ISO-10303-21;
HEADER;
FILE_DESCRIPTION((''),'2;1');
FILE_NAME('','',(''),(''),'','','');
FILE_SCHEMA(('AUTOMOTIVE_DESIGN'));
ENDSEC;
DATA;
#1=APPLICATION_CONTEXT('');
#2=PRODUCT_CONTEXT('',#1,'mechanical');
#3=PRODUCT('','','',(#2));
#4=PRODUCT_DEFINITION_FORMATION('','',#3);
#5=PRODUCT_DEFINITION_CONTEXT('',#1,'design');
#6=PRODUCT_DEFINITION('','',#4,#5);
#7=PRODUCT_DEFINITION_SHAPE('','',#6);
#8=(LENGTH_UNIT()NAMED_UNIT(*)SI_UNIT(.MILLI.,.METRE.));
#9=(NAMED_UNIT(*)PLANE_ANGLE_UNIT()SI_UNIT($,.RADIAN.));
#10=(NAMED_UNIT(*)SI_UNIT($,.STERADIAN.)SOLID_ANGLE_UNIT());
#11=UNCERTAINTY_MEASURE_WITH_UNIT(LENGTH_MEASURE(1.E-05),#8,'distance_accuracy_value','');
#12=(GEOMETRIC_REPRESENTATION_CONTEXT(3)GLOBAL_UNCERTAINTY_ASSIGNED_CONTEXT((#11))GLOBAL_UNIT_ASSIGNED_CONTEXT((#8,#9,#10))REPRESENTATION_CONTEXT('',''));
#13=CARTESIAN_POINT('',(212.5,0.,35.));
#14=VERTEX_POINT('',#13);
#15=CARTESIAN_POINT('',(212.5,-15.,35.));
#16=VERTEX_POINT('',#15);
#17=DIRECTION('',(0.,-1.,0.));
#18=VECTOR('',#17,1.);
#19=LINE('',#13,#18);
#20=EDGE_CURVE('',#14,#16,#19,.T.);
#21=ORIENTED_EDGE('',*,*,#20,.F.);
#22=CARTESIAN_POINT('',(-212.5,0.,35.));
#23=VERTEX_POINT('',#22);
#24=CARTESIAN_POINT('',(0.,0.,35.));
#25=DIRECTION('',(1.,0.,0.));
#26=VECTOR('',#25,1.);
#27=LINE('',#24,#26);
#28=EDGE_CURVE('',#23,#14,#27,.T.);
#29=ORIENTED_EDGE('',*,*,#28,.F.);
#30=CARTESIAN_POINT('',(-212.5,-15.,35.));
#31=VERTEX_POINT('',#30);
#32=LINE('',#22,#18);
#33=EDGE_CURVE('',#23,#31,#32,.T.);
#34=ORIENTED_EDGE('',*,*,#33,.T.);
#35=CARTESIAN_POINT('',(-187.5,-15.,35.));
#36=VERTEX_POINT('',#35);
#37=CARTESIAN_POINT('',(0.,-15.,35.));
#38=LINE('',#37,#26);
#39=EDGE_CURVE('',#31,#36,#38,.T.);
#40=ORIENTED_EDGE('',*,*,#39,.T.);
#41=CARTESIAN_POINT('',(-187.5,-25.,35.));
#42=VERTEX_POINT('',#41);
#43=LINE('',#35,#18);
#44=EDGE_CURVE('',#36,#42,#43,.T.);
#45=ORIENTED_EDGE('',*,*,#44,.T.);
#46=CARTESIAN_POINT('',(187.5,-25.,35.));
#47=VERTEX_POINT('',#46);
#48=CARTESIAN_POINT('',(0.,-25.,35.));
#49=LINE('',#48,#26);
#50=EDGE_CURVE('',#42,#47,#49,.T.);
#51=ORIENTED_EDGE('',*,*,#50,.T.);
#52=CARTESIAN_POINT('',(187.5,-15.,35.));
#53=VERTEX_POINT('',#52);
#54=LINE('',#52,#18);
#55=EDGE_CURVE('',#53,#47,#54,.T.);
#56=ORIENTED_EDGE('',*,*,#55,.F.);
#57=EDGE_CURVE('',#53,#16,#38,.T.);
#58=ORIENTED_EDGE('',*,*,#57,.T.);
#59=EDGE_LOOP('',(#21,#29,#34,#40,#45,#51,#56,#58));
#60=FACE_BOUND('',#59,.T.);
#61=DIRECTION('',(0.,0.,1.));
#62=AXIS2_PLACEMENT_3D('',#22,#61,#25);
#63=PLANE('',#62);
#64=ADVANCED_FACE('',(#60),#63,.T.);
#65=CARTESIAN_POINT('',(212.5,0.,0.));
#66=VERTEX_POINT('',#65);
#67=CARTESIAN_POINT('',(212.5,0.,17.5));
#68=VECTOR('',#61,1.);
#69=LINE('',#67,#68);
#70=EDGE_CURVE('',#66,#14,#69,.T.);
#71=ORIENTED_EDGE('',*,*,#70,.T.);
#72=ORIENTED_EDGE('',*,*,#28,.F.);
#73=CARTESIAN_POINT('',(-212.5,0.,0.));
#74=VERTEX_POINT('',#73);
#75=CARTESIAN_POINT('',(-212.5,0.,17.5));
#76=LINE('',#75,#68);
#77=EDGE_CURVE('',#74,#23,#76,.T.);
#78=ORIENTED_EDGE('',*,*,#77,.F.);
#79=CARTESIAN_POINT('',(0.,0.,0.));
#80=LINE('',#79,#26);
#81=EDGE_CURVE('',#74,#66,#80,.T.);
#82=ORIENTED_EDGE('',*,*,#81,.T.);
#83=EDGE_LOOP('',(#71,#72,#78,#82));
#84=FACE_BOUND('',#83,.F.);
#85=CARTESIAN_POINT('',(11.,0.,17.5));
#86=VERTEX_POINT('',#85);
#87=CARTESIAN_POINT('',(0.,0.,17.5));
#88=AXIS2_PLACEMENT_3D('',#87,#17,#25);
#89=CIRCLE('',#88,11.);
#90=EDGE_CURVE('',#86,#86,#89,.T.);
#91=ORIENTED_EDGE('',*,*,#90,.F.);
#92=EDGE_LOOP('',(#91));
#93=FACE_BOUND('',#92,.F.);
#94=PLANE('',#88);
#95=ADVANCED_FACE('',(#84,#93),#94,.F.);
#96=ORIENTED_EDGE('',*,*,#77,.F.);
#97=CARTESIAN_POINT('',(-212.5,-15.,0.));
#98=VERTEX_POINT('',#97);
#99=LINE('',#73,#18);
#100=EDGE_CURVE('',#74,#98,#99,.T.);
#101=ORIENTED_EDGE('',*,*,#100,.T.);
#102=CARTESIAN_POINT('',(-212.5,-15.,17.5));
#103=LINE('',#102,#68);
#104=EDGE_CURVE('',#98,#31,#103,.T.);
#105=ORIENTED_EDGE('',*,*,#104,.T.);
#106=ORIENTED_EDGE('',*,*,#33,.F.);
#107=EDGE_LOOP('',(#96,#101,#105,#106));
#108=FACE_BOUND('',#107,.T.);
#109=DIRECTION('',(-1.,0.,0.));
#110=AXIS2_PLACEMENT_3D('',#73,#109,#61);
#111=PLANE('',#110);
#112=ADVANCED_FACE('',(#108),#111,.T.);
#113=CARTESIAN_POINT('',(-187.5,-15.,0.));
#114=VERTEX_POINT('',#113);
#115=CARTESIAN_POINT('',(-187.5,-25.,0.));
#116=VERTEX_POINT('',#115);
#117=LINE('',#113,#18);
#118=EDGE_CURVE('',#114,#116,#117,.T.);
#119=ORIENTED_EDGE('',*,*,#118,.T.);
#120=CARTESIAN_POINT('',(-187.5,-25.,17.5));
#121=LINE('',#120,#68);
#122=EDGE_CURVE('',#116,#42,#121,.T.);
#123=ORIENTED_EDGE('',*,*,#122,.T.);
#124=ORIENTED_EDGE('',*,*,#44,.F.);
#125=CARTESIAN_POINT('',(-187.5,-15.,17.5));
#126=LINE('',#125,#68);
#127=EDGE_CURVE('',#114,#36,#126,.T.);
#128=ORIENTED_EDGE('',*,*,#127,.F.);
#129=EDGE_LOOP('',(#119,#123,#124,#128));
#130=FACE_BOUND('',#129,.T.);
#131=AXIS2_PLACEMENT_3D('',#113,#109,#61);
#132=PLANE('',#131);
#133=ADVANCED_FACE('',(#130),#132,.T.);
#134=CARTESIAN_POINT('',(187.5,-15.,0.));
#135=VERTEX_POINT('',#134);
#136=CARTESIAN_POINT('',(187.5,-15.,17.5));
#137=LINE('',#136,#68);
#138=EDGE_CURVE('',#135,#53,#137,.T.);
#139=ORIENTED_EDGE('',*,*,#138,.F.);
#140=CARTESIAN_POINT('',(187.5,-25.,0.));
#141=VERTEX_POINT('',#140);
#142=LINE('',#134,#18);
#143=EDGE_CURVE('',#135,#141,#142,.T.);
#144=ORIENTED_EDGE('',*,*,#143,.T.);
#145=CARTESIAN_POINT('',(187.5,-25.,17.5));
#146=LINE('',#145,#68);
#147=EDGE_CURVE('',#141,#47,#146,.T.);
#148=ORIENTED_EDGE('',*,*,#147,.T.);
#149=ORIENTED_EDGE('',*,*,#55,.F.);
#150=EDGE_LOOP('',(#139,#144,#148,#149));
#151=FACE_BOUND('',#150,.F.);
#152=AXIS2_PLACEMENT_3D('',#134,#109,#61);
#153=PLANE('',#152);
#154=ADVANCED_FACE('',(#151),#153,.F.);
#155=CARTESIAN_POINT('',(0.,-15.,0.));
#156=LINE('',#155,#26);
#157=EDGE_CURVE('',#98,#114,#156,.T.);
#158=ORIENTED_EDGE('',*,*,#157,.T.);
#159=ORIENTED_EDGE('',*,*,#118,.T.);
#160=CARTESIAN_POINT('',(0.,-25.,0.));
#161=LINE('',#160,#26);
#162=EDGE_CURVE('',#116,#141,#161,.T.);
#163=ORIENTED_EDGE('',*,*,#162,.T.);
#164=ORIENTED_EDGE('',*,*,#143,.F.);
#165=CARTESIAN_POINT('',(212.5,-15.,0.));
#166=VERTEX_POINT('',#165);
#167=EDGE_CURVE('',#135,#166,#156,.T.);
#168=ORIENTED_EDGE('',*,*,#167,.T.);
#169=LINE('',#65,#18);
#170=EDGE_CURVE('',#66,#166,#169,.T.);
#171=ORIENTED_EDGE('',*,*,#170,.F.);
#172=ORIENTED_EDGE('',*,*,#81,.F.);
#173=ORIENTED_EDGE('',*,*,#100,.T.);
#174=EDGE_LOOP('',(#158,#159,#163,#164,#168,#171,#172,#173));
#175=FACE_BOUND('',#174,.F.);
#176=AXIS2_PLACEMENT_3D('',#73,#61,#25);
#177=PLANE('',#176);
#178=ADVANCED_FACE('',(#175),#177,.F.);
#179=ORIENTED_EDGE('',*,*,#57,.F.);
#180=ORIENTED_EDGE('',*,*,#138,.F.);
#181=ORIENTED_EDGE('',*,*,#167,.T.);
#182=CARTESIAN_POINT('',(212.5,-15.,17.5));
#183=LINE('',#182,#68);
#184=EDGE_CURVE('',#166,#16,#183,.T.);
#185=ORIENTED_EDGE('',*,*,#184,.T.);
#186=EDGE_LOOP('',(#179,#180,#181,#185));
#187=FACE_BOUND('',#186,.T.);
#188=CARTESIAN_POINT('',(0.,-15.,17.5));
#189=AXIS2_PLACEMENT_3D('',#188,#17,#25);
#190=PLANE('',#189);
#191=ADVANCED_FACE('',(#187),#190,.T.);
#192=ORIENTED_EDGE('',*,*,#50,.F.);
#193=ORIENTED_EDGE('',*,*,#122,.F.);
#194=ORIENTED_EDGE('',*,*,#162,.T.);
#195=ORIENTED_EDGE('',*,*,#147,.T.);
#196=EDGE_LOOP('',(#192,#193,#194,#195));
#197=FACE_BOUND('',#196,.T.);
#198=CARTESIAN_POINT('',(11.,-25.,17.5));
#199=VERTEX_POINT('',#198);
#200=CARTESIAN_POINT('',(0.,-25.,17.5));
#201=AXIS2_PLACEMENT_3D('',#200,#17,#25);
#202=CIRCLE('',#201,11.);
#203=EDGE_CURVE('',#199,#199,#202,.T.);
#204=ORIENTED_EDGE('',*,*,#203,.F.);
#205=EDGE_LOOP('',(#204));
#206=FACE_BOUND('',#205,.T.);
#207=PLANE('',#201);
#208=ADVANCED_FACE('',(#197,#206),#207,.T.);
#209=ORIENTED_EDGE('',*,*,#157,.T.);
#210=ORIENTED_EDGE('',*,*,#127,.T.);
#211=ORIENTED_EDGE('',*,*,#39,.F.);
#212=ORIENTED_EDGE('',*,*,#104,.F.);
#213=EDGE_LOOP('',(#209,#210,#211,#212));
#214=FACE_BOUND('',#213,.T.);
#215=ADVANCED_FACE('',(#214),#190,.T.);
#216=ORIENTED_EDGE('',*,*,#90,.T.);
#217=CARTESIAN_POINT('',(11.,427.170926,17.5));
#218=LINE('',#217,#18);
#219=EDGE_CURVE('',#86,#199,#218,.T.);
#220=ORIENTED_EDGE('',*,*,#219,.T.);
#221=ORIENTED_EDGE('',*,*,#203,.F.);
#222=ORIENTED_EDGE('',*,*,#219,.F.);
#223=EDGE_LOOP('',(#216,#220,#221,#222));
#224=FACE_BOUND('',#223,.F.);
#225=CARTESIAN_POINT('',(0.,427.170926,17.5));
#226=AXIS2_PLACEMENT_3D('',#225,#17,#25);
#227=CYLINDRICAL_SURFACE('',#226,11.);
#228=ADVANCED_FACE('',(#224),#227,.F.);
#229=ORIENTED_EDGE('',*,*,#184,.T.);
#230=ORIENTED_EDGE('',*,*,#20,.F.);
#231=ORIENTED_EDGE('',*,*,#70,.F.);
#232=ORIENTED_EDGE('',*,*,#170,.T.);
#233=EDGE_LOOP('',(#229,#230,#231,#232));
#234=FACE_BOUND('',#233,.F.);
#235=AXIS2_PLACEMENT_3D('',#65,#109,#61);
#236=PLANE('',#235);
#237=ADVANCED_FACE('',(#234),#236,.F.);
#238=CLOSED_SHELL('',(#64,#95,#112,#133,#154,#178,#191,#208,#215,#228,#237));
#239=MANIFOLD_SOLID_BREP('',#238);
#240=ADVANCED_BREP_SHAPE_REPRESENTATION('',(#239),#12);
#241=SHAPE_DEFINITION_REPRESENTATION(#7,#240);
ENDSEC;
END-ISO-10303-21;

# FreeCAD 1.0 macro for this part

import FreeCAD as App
import Part
import Sketcher

V = App.Vector
Q = App.Units.Quantity

doc = App.newDocument("Part")
body = doc.addObject("PartDesign::Body", "Body")

# Sketch on XZ plane
sketch1 = body.newObject("Sketcher::SketchObject", "Sketch")
sketch1.AttachmentSupport = (doc.getObject("XZ_Plane"), [""])
sketch1.MapMode = "FlatFace"
sketch1.addGeometry(Part.LineSegment(V(-212, 35, 0), V(-212, 0, 0)), False)
sketch1.addGeometry(Part.LineSegment(V(-212, 0, 0), V(212, 0, 0)), False)
sketch1.addGeometry(Part.LineSegment(V(212, 0, 0), V(212, 35, 0)), False)
sketch1.addGeometry(Part.LineSegment(V(212, 35, 0), V(-212, 35, 0)), False)
sketch1.addConstraint(Sketcher.Constraint("Coincident", 0, 2, 1, 1))
sketch1.addConstraint(Sketcher.Constraint("Coincident", 1, 2, 2, 1))
sketch1.addConstraint(Sketcher.Constraint("Coincident", 2, 2, 3, 1))
sketch1.addConstraint(Sketcher.Constraint("Coincident", 3, 2, 0, 1))
sketch1.addConstraint(Sketcher.Constraint("Vertical", 0))
sketch1.addConstraint(Sketcher.Constraint("Horizontal", 1))
sketch1.addConstraint(Sketcher.Constraint("Vertical", 2))
sketch1.addConstraint(Sketcher.Constraint("Horizontal", 3))
sketch1.addConstraint(Sketcher.Constraint("Symmetric", 0, 2, 1, 2, -1, 1))
sketch1.addConstraint(Sketcher.Constraint("DistanceX", 1, 1, 1, 2, Q("425 mm")))
sketch1.addConstraint(Sketcher.Constraint("DistanceY", 0, 2, 0, 1, Q("35 mm")))
pad1 = body.newObject("PartDesign::Pad", "Pad")
pad1.Profile = sketch1
pad1.Length = 15

# Sketch on XZ plane
sketch2 = body.newObject("Sketcher::SketchObject", "Sketch001")
sketch2.AttachmentSupport = (doc.getObject("XZ_Plane"), [""])
sketch2.MapMode = "FlatFace"
sketch2.AttachmentOffset = App.Placement(V(0, 0, 15), App.Rotation())
sketch2.addGeometry(Part.LineSegment(V(-188, 35, 0), V(-188, 0, 0)), False)
sketch2.addGeometry(Part.LineSegment(V(-188, 0, 0), V(188, 0, 0)), False)
sketch2.addGeometry(Part.LineSegment(V(188, 0, 0), V(188, 35, 0)), False)
sketch2.addGeometry(Part.LineSegment(V(188, 35, 0), V(-188, 35, 0)), False)
sketch2.addConstraint(Sketcher.Constraint("Coincident", 0, 2, 1, 1))
sketch2.addConstraint(Sketcher.Constraint("Coincident", 1, 2, 2, 1))
sketch2.addConstraint(Sketcher.Constraint("Coincident", 2, 2, 3, 1))
sketch2.addConstraint(Sketcher.Constraint("Coincident", 3, 2, 0, 1))
sketch2.addConstraint(Sketcher.Constraint("Vertical", 0))
sketch2.addConstraint(Sketcher.Constraint("Horizontal", 1))
sketch2.addConstraint(Sketcher.Constraint("Vertical", 2))
sketch2.addConstraint(Sketcher.Constraint("Horizontal", 3))
sketch2.addConstraint(Sketcher.Constraint("Symmetric", 0, 2, 1, 2, -1, 1))
sketch2.addConstraint(Sketcher.Constraint("DistanceX", 1, 1, 1, 2, Q("375 mm")))
sketch2.addConstraint(Sketcher.Constraint("DistanceY", 0, 2, 0, 1, Q("35 mm")))
pad2 = body.newObject("PartDesign::Pad", "Pad001")
pad2.Profile = sketch2
pad2.Length = 10

# Sketch on XZ plane
sketch3 = body.newObject("Sketcher::SketchObject", "Sketch002")
sketch3.AttachmentSupport = (doc.getObject("XZ_Plane"), [""])
sketch3.MapMode = "FlatFace"
sketch3.addGeometry(Part.Circle(V(0, 18, 0), V(0, 0, 1), 11), False)
sketch3.addConstraint(Sketcher.Constraint("PointOnObject", 0, 3, -2))
sketch3.addConstraint(Sketcher.Constraint("Diameter", 0, Q("22 mm")))
sketch3.addConstraint(Sketcher.Constraint("DistanceY", -1, 1, 0, 3, Q("17.5 mm")))
doc.recompute()
hole = body.newObject("PartDesign::Hole", "Hole")
hole.Profile = sketch3
hole.ThreadType = "None"
hole.Diameter = 22
hole.DepthType = "ThroughAll"
hole.Reversed = True

doc.recompute()
